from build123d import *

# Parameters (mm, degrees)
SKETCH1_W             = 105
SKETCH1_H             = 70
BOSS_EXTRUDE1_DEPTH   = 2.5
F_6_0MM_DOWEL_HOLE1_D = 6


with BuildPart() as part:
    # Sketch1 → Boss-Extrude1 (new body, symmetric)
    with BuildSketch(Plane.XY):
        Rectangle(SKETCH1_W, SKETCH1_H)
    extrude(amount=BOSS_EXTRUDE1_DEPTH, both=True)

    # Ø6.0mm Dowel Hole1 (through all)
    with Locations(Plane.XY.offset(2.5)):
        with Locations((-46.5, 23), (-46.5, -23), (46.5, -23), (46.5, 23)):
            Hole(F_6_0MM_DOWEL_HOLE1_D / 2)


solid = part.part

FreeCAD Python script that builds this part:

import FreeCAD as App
import Part
import Sketcher

V = App.Vector
Q = App.Units.Quantity

doc = App.newDocument("Part")
body = doc.addObject("PartDesign::Body", "Body")

# Sketch on XY plane
sketch1 = doc.addObject("Sketcher::SketchObject", "Sketch")
body.addObject(sketch1)
sketch1.AttachmentSupport = (doc.XY_Plane, [""])
sketch1.MapMode = "FlatFace"
sketch1.addGeometry([
    Part.LineSegment(V(-52, 35, 0), V(-52, -35, 0)),
    Part.LineSegment(V(-52, -35, 0), V(52, -35, 0)),
    Part.LineSegment(V(52, -35, 0), V(52, 35, 0)),
    Part.LineSegment(V(52, 35, 0), V(-52, 35, 0)),
], False)
sketch1.addConstraint([
    Sketcher.Constraint("Coincident", 0, 2, 1, 1),
    Sketcher.Constraint("Coincident", 1, 2, 2, 1),
    Sketcher.Constraint("Coincident", 2, 2, 3, 1),
    Sketcher.Constraint("Coincident", 3, 2, 0, 1),
    Sketcher.Constraint("Vertical", 0),
    Sketcher.Constraint("Horizontal", 1),
    Sketcher.Constraint("Vertical", 2),
    Sketcher.Constraint("Horizontal", 3),
    Sketcher.Constraint("Symmetric", 0, 2, 2, 2, -1, 1),
    Sketcher.Constraint("DistanceX", 1, 1, 1, 2, Q("105 mm")),
    Sketcher.Constraint("DistanceY", 0, 2, 0, 1, Q("70 mm")),
])
pad1 = doc.addObject("PartDesign::Pad", "Pad")
body.addObject(pad1)
pad1.Profile = sketch1
pad1.Length = 5
pad1.Midplane = True

# Sketch on XY plane
sketch2 = doc.addObject("Sketcher::SketchObject", "Sketch001")
body.addObject(sketch2)
sketch2.AttachmentSupport = (doc.XY_Plane, [""])
sketch2.MapMode = "FlatFace"
sketch2.AttachmentOffset = App.Placement(V(0, 0, 2.5), App.Rotation())
sketch2.addGeometry([
    Part.Circle(V(-46.5, 23, 0), V(0, 0, 1), 3),
    Part.Circle(V(-46.5, -23, 0), V(0, 0, 1), 3),
    Part.Circle(V(46.5, -23, 0), V(0, 0, 1), 3),
    Part.Circle(V(46.5, 23, 0), V(0, 0, 1), 3),
], False)
sketch2.addConstraint([
    Sketcher.Constraint("Equal", 0, 1),
    Sketcher.Constraint("Equal", 1, 2),
    Sketcher.Constraint("Equal", 2, 3),
    Sketcher.Constraint("Symmetric", 0, 3, 2, 3, -1, 1),
    Sketcher.Constraint("Symmetric", 1, 3, 3, 3, -1, 1),
    Sketcher.Constraint("Symmetric", 1, 3, 2, 3, -2),
    Sketcher.Constraint("Diameter", 0, Q("6 mm")),
    Sketcher.Constraint("DistanceY", -1, 1, 0, 3, Q("23 mm")),
    Sketcher.Constraint("DistanceX", 1, 3, 2, 3, Q("93 mm")),
])
doc.recompute()
hole = doc.addObject("PartDesign::Hole", "Hole")
body.addObject(hole)
hole.Profile = sketch2
hole.ThreadType = "None"
hole.Diameter = 6
hole.DepthType = "ThroughAll"

doc.recompute()
